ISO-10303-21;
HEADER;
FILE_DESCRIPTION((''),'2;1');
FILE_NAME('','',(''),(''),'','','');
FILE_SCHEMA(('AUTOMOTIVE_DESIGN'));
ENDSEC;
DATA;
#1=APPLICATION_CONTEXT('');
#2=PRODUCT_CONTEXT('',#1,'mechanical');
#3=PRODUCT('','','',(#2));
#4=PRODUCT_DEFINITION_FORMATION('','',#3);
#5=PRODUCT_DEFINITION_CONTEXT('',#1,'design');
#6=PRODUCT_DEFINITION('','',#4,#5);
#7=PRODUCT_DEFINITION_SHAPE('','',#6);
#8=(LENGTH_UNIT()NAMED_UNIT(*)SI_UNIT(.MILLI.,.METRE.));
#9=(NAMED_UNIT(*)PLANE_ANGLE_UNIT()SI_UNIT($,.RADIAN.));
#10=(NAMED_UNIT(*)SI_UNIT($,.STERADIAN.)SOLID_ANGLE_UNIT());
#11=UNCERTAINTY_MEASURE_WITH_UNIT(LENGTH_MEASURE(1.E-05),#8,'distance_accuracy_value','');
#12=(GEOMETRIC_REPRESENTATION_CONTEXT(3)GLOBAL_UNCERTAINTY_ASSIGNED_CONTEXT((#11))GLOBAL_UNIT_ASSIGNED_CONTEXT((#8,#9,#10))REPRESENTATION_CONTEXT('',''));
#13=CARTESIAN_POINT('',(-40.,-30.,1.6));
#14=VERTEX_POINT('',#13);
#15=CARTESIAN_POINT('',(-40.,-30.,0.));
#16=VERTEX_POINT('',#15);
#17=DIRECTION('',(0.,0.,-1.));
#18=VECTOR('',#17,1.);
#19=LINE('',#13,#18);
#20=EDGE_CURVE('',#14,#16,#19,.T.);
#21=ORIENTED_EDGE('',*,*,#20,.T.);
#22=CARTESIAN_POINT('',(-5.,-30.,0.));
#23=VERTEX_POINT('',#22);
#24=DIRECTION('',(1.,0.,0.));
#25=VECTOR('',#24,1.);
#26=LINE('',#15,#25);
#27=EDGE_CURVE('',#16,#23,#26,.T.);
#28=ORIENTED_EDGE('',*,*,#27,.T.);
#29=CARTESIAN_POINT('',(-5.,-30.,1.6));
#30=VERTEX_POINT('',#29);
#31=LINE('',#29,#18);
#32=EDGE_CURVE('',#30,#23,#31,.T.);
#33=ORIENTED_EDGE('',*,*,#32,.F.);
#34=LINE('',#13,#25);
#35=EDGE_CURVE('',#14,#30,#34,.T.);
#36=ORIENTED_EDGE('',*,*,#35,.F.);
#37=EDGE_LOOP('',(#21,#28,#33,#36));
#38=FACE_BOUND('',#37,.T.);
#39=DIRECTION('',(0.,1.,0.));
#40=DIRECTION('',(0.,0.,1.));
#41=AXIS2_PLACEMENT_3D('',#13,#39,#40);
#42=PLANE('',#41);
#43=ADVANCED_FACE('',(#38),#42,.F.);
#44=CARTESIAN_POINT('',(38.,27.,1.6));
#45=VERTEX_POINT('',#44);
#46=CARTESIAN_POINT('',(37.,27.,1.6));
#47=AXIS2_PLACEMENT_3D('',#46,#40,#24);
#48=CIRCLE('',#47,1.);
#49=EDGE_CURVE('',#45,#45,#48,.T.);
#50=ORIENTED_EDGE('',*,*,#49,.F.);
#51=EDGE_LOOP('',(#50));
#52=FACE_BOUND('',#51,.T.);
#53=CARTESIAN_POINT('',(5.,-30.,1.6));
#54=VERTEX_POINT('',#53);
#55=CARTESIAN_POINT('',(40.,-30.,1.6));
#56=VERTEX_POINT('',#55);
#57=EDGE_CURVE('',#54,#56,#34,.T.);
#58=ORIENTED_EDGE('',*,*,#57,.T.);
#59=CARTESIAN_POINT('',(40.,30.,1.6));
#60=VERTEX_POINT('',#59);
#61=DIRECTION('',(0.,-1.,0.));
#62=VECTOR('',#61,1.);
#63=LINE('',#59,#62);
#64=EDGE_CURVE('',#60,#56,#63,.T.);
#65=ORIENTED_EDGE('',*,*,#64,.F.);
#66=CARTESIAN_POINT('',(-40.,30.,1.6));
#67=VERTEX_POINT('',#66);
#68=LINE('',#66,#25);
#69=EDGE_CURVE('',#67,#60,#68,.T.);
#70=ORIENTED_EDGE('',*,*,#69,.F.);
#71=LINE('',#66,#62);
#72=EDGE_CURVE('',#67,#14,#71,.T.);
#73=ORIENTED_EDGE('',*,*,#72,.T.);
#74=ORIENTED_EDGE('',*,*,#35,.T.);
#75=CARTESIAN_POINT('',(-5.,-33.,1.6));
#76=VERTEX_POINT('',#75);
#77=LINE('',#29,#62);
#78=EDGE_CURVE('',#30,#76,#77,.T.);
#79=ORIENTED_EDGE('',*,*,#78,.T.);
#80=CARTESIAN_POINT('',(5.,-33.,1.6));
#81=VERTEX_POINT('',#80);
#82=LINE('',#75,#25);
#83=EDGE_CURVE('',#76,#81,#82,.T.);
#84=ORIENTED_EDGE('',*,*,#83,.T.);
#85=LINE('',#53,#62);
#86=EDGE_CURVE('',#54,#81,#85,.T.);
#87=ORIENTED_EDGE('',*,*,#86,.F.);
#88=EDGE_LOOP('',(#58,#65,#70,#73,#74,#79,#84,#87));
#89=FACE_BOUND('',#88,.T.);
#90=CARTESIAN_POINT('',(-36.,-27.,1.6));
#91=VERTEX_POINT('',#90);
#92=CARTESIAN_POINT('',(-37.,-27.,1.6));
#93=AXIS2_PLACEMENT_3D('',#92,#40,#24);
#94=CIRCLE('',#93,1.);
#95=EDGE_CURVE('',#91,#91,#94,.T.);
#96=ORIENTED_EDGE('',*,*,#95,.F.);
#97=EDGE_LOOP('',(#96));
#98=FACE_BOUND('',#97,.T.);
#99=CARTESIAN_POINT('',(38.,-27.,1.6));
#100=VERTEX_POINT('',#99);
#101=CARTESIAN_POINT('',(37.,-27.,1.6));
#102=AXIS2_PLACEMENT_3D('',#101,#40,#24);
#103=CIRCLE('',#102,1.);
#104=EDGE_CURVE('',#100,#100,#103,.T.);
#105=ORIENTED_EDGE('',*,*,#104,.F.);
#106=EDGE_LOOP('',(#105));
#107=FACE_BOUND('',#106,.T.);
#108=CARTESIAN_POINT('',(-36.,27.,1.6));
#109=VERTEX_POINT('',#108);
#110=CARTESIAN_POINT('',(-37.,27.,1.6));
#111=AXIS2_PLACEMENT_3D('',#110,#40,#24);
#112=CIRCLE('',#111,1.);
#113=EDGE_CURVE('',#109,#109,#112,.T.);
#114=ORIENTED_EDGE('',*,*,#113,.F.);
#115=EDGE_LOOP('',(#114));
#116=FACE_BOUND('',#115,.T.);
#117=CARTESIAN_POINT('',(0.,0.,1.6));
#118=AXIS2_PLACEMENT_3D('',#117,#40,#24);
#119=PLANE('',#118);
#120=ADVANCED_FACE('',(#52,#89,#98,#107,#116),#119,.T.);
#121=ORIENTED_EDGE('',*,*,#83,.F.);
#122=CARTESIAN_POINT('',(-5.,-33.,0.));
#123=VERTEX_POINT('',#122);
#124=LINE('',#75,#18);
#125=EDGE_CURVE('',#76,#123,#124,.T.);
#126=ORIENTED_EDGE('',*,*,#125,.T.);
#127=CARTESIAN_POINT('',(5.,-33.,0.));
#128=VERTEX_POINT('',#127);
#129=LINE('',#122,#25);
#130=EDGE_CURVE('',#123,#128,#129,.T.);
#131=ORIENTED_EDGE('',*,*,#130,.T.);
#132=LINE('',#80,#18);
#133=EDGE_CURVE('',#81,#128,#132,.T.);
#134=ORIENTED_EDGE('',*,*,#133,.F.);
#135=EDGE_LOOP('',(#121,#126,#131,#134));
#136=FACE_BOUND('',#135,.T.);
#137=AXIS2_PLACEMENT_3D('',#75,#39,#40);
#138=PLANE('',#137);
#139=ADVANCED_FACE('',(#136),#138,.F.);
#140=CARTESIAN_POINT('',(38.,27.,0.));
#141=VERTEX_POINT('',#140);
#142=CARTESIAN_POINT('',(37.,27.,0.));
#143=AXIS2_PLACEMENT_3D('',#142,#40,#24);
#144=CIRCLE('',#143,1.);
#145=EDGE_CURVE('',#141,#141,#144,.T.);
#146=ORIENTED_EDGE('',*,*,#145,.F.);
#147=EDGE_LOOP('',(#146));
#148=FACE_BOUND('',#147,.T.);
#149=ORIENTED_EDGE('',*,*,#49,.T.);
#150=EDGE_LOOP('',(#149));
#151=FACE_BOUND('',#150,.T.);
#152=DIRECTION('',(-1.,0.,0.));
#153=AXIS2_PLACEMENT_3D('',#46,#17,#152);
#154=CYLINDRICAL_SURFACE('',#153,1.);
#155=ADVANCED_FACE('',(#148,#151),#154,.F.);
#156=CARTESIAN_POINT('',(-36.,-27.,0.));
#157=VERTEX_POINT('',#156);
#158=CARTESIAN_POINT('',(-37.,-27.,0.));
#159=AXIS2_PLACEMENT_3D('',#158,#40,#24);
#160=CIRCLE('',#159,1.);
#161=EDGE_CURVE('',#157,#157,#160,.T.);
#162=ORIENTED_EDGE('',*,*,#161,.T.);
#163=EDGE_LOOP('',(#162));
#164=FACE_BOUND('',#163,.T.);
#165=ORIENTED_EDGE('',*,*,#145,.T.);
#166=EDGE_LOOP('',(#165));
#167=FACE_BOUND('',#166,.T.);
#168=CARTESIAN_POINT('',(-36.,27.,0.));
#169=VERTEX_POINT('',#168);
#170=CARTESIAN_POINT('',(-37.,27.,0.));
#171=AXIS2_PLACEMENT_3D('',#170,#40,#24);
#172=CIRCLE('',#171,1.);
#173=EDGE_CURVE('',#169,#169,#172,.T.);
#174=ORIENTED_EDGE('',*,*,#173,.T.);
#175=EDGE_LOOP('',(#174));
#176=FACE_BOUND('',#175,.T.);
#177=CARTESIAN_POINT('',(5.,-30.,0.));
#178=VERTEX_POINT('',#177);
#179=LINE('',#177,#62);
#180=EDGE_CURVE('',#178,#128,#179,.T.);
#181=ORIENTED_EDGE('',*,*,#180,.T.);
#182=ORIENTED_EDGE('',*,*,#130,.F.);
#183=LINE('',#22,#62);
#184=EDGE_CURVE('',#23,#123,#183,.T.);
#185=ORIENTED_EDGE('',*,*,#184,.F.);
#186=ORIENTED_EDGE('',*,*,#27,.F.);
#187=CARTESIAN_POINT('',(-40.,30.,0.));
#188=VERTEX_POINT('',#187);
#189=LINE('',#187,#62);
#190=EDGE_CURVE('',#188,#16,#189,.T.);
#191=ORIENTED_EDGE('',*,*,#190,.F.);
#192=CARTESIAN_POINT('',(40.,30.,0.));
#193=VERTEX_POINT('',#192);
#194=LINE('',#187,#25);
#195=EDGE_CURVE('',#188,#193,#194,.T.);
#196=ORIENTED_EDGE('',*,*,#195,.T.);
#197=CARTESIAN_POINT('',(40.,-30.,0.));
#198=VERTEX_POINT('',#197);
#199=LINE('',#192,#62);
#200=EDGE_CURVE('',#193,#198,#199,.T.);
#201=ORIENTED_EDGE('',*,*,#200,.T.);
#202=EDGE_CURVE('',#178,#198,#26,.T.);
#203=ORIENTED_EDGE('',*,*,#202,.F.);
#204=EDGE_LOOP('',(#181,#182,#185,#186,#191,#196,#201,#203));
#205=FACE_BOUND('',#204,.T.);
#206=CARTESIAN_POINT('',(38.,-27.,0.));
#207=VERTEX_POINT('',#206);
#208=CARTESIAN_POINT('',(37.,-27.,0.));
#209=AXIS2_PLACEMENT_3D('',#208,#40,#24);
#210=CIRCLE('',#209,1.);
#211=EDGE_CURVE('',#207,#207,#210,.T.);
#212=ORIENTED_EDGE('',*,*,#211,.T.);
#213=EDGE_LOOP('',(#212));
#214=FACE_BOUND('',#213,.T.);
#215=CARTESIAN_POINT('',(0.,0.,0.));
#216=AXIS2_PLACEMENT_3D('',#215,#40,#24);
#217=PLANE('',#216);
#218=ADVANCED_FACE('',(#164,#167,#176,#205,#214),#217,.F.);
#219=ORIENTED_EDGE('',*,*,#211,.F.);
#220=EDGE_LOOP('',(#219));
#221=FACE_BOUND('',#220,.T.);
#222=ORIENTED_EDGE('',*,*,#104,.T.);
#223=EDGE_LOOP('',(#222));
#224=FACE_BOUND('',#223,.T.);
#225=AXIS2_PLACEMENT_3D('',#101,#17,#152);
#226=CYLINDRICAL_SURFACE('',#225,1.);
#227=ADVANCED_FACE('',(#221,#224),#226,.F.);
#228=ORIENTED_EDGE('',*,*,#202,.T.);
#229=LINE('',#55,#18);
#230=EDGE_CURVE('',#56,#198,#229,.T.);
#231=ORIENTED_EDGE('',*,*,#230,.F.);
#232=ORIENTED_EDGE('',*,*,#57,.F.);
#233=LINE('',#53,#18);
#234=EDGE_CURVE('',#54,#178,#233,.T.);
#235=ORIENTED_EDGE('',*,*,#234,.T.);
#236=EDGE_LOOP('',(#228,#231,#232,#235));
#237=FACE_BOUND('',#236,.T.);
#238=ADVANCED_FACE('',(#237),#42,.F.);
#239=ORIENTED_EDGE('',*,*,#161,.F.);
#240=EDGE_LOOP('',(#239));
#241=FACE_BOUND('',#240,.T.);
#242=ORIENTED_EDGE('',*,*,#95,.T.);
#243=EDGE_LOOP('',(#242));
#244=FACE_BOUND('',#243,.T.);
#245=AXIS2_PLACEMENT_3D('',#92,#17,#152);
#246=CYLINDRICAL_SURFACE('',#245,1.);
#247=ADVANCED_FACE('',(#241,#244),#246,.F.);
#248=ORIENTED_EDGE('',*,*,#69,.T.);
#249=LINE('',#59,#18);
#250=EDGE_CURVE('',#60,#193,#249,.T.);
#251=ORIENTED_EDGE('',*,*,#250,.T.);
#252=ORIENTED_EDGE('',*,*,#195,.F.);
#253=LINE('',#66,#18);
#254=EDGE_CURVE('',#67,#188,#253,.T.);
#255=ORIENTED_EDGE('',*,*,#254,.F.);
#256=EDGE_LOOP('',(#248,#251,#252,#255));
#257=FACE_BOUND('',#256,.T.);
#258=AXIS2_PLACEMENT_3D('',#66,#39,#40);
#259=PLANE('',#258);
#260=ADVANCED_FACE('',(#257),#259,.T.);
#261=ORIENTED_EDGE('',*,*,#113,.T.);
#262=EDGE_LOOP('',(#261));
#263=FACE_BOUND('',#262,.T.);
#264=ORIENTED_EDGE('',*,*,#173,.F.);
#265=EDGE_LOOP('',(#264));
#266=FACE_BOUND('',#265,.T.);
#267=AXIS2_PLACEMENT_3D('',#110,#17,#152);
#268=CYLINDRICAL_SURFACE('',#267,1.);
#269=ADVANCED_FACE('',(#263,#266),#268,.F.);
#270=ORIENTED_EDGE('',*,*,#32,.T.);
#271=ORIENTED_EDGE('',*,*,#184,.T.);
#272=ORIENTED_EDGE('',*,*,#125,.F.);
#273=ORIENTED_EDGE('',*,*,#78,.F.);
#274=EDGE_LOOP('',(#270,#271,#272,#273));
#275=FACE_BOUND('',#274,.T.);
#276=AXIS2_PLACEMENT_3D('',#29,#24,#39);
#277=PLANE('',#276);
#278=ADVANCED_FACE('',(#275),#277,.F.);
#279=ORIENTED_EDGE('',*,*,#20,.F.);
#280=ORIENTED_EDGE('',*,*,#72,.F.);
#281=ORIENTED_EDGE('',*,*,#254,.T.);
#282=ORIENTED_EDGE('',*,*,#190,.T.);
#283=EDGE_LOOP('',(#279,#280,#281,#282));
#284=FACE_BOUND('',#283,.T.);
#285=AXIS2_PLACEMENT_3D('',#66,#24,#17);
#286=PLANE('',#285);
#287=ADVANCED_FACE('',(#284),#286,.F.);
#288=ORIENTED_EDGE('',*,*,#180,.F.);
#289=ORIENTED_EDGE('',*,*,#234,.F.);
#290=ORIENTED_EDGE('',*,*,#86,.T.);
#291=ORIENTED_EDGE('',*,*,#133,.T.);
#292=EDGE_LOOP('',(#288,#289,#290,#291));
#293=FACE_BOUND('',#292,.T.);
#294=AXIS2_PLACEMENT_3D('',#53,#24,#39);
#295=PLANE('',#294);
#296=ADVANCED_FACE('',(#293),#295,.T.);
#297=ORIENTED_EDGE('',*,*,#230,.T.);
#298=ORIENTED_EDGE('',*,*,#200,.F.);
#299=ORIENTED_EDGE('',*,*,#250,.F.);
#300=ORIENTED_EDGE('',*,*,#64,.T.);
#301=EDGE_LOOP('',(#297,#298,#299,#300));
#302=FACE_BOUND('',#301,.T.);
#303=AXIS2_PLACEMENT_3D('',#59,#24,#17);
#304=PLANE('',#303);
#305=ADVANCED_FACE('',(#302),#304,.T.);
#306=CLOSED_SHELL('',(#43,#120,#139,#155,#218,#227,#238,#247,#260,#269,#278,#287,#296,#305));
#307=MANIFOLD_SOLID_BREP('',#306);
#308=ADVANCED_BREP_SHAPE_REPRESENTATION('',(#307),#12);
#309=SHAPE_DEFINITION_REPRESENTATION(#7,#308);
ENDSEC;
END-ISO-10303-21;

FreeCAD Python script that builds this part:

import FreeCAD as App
import Part
import Sketcher

doc = App.newDocument("Part")
body = doc.addObject("PartDesign::Body", "Body")

# Sketch on XY plane
sketch1 = body.newObject("Sketcher::SketchObject", "Sketch")
sketch1.AttachmentSupport = (doc.getObject("XY_Plane"), [""])
sketch1.MapMode = "FlatFace"
sketch1.addGeometry(Part.LineSegment(App.Vector(-40, 30, 0), App.Vector(-40, -30, 0)), False)
sketch1.addGeometry(Part.LineSegment(App.Vector(-40, -30, 0), App.Vector(-5, -30, 0)), False)
sketch1.addGeometry(Part.LineSegment(App.Vector(-5, -30, 0), App.Vector(-5, -33, 0)), False)
sketch1.addGeometry(Part.LineSegment(App.Vector(-5, -33, 0), App.Vector(5, -33, 0)), False)
sketch1.addGeometry(Part.LineSegment(App.Vector(5, -33, 0), App.Vector(5, -30, 0)), False)
sketch1.addGeometry(Part.LineSegment(App.Vector(5, -30, 0), App.Vector(40, -30, 0)), False)
sketch1.addGeometry(Part.LineSegment(App.Vector(40, -30, 0), App.Vector(40, 30, 0)), False)
sketch1.addGeometry(Part.LineSegment(App.Vector(40, 30, 0), App.Vector(-40, 30, 0)), False)
sketch1.addGeometry(Part.Circle(App.Vector(-37, -27, 0), App.Vector(0, 0, 1), 1), False)
sketch1.addGeometry(Part.Circle(App.Vector(37, -27, 0), App.Vector(0, 0, 1), 1), False)
sketch1.addGeometry(Part.Circle(App.Vector(-37, 27, 0), App.Vector(0, 0, 1), 1), False)
sketch1.addGeometry(Part.Circle(App.Vector(37, 27, 0), App.Vector(0, 0, 1), 1), False)
sketch1.addConstraint(Sketcher.Constraint("Coincident", 0, 2, 1, 1))
sketch1.addConstraint(Sketcher.Constraint("Coincident", 1, 2, 2, 1))
sketch1.addConstraint(Sketcher.Constraint("Coincident", 2, 2, 3, 1))
sketch1.addConstraint(Sketcher.Constraint("Coincident", 3, 2, 4, 1))
sketch1.addConstraint(Sketcher.Constraint("Coincident", 4, 2, 5, 1))
sketch1.addConstraint(Sketcher.Constraint("Coincident", 5, 2, 6, 1))
sketch1.addConstraint(Sketcher.Constraint("Coincident", 6, 2, 7, 1))
sketch1.addConstraint(Sketcher.Constraint("Coincident", 7, 2, 0, 1))
sketch1.addConstraint(Sketcher.Constraint("Vertical", 0))
sketch1.addConstraint(Sketcher.Constraint("Horizontal", 1))
sketch1.addConstraint(Sketcher.Constraint("Vertical", 2))
sketch1.addConstraint(Sketcher.Constraint("Horizontal", 3))
sketch1.addConstraint(Sketcher.Constraint("Vertical", 4))
sketch1.addConstraint(Sketcher.Constraint("Horizontal", 5))
sketch1.addConstraint(Sketcher.Constraint("Vertical", 6))
sketch1.addConstraint(Sketcher.Constraint("Horizontal", 7))
sketch1.addConstraint(Sketcher.Constraint("Equal", 8, 9))
sketch1.addConstraint(Sketcher.Constraint("Equal", 9, 10))
sketch1.addConstraint(Sketcher.Constraint("Equal", 10, 11))
sketch1.addConstraint(Sketcher.Constraint("Symmetric", 9, 3, 10, 3, -1, 1))
sketch1.addConstraint(Sketcher.Constraint("Symmetric", 8, 3, 11, 3, -1, 1))
sketch1.addConstraint(Sketcher.Constraint("Symmetric", 0, 2, 6, 2, -1, 1))
sketch1.addConstraint(Sketcher.Constraint("Symmetric", 8, 3, 9, 3, -2))
sketch1.addConstraint(Sketcher.Constraint("Symmetric", 1, 2, 4, 2, -2))
sketch1.addConstraint(Sketcher.Constraint("Diameter", 8, 2.0))
sketch1.addConstraint(Sketcher.Constraint("DistanceX", 1, 1, 1, 2, 35.0))
sketch1.addConstraint(Sketcher.Constraint("DistanceX", 3, 1, 3, 2, 10.0))
sketch1.addConstraint(Sketcher.Constraint("DistanceY", 0, 2, 0, 1, 60.0))
sketch1.addConstraint(Sketcher.Constraint("DistanceY", 2, 2, 2, 1, 3.0))
sketch1.addConstraint(Sketcher.Constraint("DistanceX", 8, 3, -1, 1, 37.0))
sketch1.addConstraint(Sketcher.Constraint("DistanceY", 8, 3, -1, 1, 27.0))
pad1 = body.newObject("PartDesign::Pad", "Pad")
pad1.Profile = sketch1
pad1.Length = 1.6

doc.recompute()
